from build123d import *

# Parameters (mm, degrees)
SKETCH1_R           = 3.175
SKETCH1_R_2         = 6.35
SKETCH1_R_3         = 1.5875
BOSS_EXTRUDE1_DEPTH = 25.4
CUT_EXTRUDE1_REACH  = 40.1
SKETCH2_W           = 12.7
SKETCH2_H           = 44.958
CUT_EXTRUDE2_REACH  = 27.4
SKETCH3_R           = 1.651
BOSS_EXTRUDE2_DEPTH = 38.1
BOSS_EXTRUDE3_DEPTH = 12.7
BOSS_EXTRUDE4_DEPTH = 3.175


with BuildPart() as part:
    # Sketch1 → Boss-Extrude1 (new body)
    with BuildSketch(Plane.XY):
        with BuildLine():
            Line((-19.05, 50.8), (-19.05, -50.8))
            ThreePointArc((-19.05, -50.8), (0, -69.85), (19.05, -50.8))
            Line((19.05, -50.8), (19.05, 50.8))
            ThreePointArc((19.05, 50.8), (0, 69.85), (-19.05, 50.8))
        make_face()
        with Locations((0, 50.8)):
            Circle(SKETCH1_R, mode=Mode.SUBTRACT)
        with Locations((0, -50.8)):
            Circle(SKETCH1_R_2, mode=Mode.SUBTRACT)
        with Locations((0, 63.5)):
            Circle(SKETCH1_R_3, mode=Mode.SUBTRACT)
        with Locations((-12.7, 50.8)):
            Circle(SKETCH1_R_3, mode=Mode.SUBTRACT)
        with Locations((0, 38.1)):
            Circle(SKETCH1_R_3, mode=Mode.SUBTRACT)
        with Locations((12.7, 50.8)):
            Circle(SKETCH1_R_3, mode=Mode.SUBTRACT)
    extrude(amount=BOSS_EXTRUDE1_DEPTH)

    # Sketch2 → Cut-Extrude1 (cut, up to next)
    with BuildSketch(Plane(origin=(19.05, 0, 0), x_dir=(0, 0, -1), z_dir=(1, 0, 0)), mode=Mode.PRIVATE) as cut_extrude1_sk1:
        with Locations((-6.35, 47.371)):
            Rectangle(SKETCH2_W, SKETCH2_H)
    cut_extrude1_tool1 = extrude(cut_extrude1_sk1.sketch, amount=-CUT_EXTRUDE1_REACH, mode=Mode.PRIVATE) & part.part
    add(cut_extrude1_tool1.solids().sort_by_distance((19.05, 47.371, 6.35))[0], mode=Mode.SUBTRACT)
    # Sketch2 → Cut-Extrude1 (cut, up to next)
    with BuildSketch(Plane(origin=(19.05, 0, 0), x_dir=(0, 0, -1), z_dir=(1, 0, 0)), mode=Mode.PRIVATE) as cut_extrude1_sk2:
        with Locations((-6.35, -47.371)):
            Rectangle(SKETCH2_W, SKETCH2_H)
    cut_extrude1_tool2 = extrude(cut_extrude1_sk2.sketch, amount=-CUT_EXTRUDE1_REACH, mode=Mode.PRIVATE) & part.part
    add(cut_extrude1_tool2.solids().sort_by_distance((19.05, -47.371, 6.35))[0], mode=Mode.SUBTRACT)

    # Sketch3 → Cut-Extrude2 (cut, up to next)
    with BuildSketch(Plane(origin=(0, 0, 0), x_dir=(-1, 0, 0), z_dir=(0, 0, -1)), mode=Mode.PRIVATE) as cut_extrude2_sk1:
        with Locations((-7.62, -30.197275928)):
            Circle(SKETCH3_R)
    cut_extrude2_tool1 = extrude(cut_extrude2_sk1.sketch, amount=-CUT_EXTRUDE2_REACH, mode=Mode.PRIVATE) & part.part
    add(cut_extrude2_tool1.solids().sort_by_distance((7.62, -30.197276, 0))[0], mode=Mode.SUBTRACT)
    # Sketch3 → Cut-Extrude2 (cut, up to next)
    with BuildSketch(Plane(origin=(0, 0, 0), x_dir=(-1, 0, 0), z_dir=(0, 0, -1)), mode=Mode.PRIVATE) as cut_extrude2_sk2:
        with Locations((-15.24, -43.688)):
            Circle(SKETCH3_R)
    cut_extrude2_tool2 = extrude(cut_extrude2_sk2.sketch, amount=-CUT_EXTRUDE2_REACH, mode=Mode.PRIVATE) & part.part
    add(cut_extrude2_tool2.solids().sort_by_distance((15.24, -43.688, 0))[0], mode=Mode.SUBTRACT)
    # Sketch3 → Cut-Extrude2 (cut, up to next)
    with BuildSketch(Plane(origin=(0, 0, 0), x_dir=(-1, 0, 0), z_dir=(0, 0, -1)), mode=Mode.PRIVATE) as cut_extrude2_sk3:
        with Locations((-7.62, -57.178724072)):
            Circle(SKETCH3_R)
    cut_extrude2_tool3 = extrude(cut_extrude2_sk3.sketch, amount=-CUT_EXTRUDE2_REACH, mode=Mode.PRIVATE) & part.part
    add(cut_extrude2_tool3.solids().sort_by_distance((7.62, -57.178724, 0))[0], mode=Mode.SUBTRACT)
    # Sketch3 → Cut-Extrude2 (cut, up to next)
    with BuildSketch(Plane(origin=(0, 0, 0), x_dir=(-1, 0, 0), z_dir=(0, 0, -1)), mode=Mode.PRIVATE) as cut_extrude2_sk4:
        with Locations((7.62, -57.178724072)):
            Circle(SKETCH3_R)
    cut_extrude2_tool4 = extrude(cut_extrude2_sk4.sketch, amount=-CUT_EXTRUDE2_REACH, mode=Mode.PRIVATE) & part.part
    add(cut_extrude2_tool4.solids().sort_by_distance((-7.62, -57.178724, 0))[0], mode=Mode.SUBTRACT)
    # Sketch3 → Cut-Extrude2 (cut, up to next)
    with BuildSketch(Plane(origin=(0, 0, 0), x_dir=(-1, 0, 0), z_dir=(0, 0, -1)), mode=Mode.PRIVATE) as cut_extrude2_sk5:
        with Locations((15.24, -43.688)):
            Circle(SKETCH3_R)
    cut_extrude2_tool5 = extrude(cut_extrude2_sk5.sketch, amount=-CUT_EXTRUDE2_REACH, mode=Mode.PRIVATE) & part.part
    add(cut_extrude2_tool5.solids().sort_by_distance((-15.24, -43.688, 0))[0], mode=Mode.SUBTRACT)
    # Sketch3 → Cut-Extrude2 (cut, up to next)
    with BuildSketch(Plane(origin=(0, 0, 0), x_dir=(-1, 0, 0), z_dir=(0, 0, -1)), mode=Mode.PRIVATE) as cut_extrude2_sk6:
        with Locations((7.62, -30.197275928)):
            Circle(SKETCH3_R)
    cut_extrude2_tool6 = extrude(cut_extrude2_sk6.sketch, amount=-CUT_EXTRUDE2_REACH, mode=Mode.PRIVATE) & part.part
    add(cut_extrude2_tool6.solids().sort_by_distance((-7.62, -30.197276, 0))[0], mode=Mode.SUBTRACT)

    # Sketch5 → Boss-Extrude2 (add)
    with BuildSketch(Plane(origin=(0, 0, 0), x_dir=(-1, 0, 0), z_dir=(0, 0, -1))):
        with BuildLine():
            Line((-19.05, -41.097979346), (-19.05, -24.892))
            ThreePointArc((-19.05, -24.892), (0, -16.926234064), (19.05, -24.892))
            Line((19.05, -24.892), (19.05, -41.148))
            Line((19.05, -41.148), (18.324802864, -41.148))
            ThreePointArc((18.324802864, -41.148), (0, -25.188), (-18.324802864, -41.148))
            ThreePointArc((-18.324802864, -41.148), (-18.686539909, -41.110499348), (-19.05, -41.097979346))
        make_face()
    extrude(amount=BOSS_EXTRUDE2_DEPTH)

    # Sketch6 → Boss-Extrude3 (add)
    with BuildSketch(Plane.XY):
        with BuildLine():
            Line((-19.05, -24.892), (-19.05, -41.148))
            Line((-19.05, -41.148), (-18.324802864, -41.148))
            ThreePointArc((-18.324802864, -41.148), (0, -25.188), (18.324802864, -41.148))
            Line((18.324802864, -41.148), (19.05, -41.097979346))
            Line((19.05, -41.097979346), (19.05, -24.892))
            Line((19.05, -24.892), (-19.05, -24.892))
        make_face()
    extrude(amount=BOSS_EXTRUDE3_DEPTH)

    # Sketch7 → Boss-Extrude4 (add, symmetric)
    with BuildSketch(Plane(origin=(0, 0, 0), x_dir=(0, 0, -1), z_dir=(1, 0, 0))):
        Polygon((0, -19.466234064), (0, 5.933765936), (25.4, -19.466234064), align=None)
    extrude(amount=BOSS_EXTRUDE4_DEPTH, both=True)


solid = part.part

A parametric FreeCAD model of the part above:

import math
import FreeCAD as App
import Part
import Sketcher
Q = App.Units.Quantity

doc = App.newDocument("Part")
params = doc.addObject("Spreadsheet::Sheet", "Params")
for row, (alias, value) in enumerate([
    ("sketch1_diameter", "0.5 in"),
    ("sketch1_diameter2", "0.25 in"),
    ("sketch1_height", "4 in"),
    ("sketch1_radius", "0.75 in"),
    ("sketch1_diameter3", "0.125 in"),
    ("pad1_length", "1 in"),
    ("sketch2_height", "0.5 in"),
    ("sketch2_width", "1.77 in"),
    ("sketch3_height", "0.5 in"),
    ("sketch3_width", "1.77 in"),
    ("pocket2_length", "1.5 in"),
    ("sketch4_diameter", "0.13 in"),
    ("pocket3_length", "1 in"),
    ("sketch5_diameter", "0.13 in"),
    ("pocket4_length", "1 in"),
    ("sketch6_diameter", "0.13 in"),
    ("pocket5_length", "1 in"),
    ("sketch7_diameter", "0.13 in"),
    ("pocket6_length", "1 in"),
    ("sketch8_diameter", "0.13 in"),
    ("pocket7_length", "1 in"),
    ("sketch9_diameter", "0.13 in"),
    ("pocket8_length", "1 in"),
    ("sketch10_height", "0.64 in"),
    ("pad2_length", "1.5 in"),
    ("sketch11_width", "1.5 in"),
    ("sketch11_height", "0.64 in"),
    ("pad3_length", "0.5 in"),
    ("sketch12_width", "1 in"),
    ("pad4_length", "0.25 in"),
], start=1):
    params.set(f"A{row}", alias)
    params.set(f"B{row}", "=" + value)
    params.setAlias(f"B{row}", alias)

body = doc.addObject("PartDesign::Body", "Body")

# Sketch on XY plane
sketch1 = body.newObject("Sketcher::SketchObject", "Sketch")
sketch1.AttachmentSupport = (doc.getObject("XY_Plane"), [""])
sketch1.MapMode = "FlatFace"
sketch1.addGeometry(Part.LineSegment(App.Vector(-19.1, 50.8, 0), App.Vector(-19.1, -50.8, 0)), False)
sketch1.addGeometry(Part.ArcOfCircle(Part.Circle(App.Vector(0, -50.8, 0), App.Vector(0, 0, 1), 19.1), math.radians(180), math.radians(360)), False)
sketch1.addGeometry(Part.LineSegment(App.Vector(19.1, -50.8, 0), App.Vector(19.1, 50.8, 0)), False)
sketch1.addGeometry(Part.ArcOfCircle(Part.Circle(App.Vector(0, 50.8, 0), App.Vector(0, 0, 1), 19.1), math.radians(0), math.radians(180)), False)
sketch1.addGeometry(Part.Circle(App.Vector(0, -50.8, 0), App.Vector(0, 0, 1), 6.3), False)
sketch1.addGeometry(Part.Circle(App.Vector(-12.7, 50.8, 0), App.Vector(0, 0, 1), 1.6), False)
sketch1.addGeometry(Part.Circle(App.Vector(0, 38.1, 0), App.Vector(0, 0, 1), 1.6), False)
sketch1.addGeometry(Part.Circle(App.Vector(0, 50.8, 0), App.Vector(0, 0, 1), 3.2), False)
sketch1.addGeometry(Part.Circle(App.Vector(0, 63.5, 0), App.Vector(0, 0, 1), 1.6), False)
sketch1.addGeometry(Part.Circle(App.Vector(12.7, 50.8, 0), App.Vector(0, 0, 1), 1.6), False)
sketch1.addConstraint(Sketcher.Constraint("Tangent", 0, 2, 1, 1))
sketch1.addConstraint(Sketcher.Constraint("Tangent", 1, 2, 2, 1))
sketch1.addConstraint(Sketcher.Constraint("Tangent", 2, 2, 3, 1))
sketch1.addConstraint(Sketcher.Constraint("Tangent", 3, 2, 0, 1))
sketch1.addConstraint(Sketcher.Constraint("Vertical", 0))
sketch1.addConstraint(Sketcher.Constraint("Vertical", 2))
sketch1.addConstraint(Sketcher.Constraint("Coincident", 4, 3, 1, 3))
sketch1.addConstraint(Sketcher.Constraint("Coincident", 7, 3, 3, 3))
sketch1.addConstraint(Sketcher.Constraint("Equal", 5, 6))
sketch1.addConstraint(Sketcher.Constraint("Equal", 6, 8))
sketch1.addConstraint(Sketcher.Constraint("Equal", 8, 9))
sketch1.addConstraint(Sketcher.Constraint("Symmetric", 1, 3, 3, 3, -1, 1))
sketch1.addConstraint(Sketcher.Constraint("Symmetric", 5, 3, 9, 3, -2))
sketch1.addConstraint(Sketcher.Constraint("PointOnObject", 6, 3, -2))
sketch1.addConstraint(Sketcher.Constraint("PointOnObject", 8, 3, -2))
sketch1.addConstraint(Sketcher.Constraint("Horizontal", 3, 3, 5, 3))
sketch1.addConstraint(Sketcher.Constraint("Diameter", 4, Q("0.5 in")))
sketch1.addConstraint(Sketcher.Constraint("Diameter", 7, Q("0.25 in")))
sketch1.addConstraint(Sketcher.Constraint("DistanceY", 0, 2, 0, 1, Q("4 in")))
sketch1.addConstraint(Sketcher.Constraint("Radius", 1, Q("0.75 in")))
sketch1.addConstraint(Sketcher.Constraint("Diameter", 5, Q("0.125 in")))
sketch1.addConstraint(Sketcher.Constraint("DistanceY", 6, 3, 8, 3, Q("1 in")))
sketch1.addConstraint(Sketcher.Constraint("DistanceX", 5, 3, 9, 3, Q("1 in")))
sketch1.addConstraint(Sketcher.Constraint("DistanceY", -1, 1, 6, 3, Q("1.5 in")))
sketch1.setExpression("Constraints[16]", "Params.sketch1_diameter")
sketch1.setExpression("Constraints[17]", "Params.sketch1_diameter2")
sketch1.setExpression("Constraints[18]", "Params.sketch1_height")
sketch1.setExpression("Constraints[19]", "Params.sketch1_radius")
sketch1.setExpression("Constraints[20]", "Params.sketch1_diameter3")
pad1 = body.newObject("PartDesign::Pad", "Pad")
pad1.Profile = sketch1
pad1.setExpression("Length", "Params.pad1_length")

# Sketch on YZ plane
sketch2 = body.newObject("Sketcher::SketchObject", "Sketch001")
sketch2.AttachmentSupport = (doc.getObject("YZ_Plane"), [""])
sketch2.MapMode = "FlatFace"
sketch2.AttachmentOffset = App.Placement(App.Vector(0, 0, 0.75 * 25.4), App.Rotation())
sketch2.addGeometry(Part.LineSegment(App.Vector(70, 13, 0), App.Vector(25, 13, 0)), False)
sketch2.addGeometry(Part.LineSegment(App.Vector(25, 13, 0), App.Vector(25, 0, 0)), False)
sketch2.addGeometry(Part.LineSegment(App.Vector(25, 0, 0), App.Vector(70, 0, 0)), False)
sketch2.addGeometry(Part.LineSegment(App.Vector(70, 0, 0), App.Vector(70, 13, 0)), False)
sketch2.addConstraint(Sketcher.Constraint("Coincident", 0, 2, 1, 1))
sketch2.addConstraint(Sketcher.Constraint("Coincident", 1, 2, 2, 1))
sketch2.addConstraint(Sketcher.Constraint("Coincident", 2, 2, 3, 1))
sketch2.addConstraint(Sketcher.Constraint("Coincident", 3, 2, 0, 1))
sketch2.addConstraint(Sketcher.Constraint("Horizontal", 0))
sketch2.addConstraint(Sketcher.Constraint("Vertical", 1))
sketch2.addConstraint(Sketcher.Constraint("Horizontal", 2))
sketch2.addConstraint(Sketcher.Constraint("Vertical", 3))
sketch2.addConstraint(Sketcher.Constraint("PointOnObject", 1, 2, -1))
sketch2.addConstraint(Sketcher.Constraint("DistanceY", 1, 2, 1, 1, Q("0.5 in")))
sketch2.addConstraint(Sketcher.Constraint("DistanceX", 0, 2, 0, 1, Q("1.77 in")))
sketch2.addConstraint(Sketcher.Constraint("DistanceX", -1, 1, 0, 2, Q("0.98 in")))
sketch2.setExpression("Constraints[9]", "Params.sketch2_height")
sketch2.setExpression("Constraints[10]", "Params.sketch2_width")
pocket1 = body.newObject("PartDesign::Pocket", "Pocket")
pocket1.Profile = sketch2
pocket1.Type = "UpToFirst"

# Sketch on YZ plane
sketch3 = body.newObject("Sketcher::SketchObject", "Sketch002")
sketch3.AttachmentSupport = (doc.getObject("YZ_Plane"), [""])
sketch3.MapMode = "FlatFace"
sketch3.AttachmentOffset = App.Placement(App.Vector(0, 0, 0.75 * 25.4), App.Rotation())
sketch3.addGeometry(Part.LineSegment(App.Vector(-25, 13, 0), App.Vector(-70, 13, 0)), False)
sketch3.addGeometry(Part.LineSegment(App.Vector(-70, 13, 0), App.Vector(-70, 0, 0)), False)
sketch3.addGeometry(Part.LineSegment(App.Vector(-70, 0, 0), App.Vector(-25, 0, 0)), False)
sketch3.addGeometry(Part.LineSegment(App.Vector(-25, 0, 0), App.Vector(-25, 13, 0)), False)
sketch3.addConstraint(Sketcher.Constraint("Coincident", 0, 2, 1, 1))
sketch3.addConstraint(Sketcher.Constraint("Coincident", 1, 2, 2, 1))
sketch3.addConstraint(Sketcher.Constraint("Coincident", 2, 2, 3, 1))
sketch3.addConstraint(Sketcher.Constraint("Coincident", 3, 2, 0, 1))
sketch3.addConstraint(Sketcher.Constraint("Horizontal", 0))
sketch3.addConstraint(Sketcher.Constraint("Vertical", 1))
sketch3.addConstraint(Sketcher.Constraint("Horizontal", 2))
sketch3.addConstraint(Sketcher.Constraint("Vertical", 3))
sketch3.addConstraint(Sketcher.Constraint("PointOnObject", 1, 2, -1))
sketch3.addConstraint(Sketcher.Constraint("DistanceY", 1, 2, 1, 1, Q("0.5 in")))
sketch3.addConstraint(Sketcher.Constraint("DistanceX", 0, 2, 0, 1, Q("1.77 in")))
sketch3.addConstraint(Sketcher.Constraint("DistanceX", 0, 2, -1, 1, Q("2.75 in")))
sketch3.setExpression("Constraints[9]", "Params.sketch3_height")
sketch3.setExpression("Constraints[10]", "Params.sketch3_width")
pocket2 = body.newObject("PartDesign::Pocket", "Pocket001")
pocket2.Profile = sketch3
pocket2.setExpression("Length", "Params.pocket2_length")

# Sketch on XY plane
sketch4 = body.newObject("Sketcher::SketchObject", "Sketch003")
sketch4.AttachmentSupport = (doc.getObject("XY_Plane"), [""])
sketch4.MapMode = "FlatFace"
sketch4.addGeometry(Part.Circle(App.Vector(7.6, -30.2, 0), App.Vector(0, 0, 1), 1.7), False)
sketch4.addConstraint(Sketcher.Constraint("Diameter", 0, Q("0.13 in")))
sketch4.addConstraint(Sketcher.Constraint("DistanceX", -1, 1, 0, 3, Q("0.3 in")))
sketch4.addConstraint(Sketcher.Constraint("DistanceY", 0, 3, -1, 1, Q("30.197276 mm")))
sketch4.setExpression("Constraints[0]", "Params.sketch4_diameter")
pocket3 = body.newObject("PartDesign::Pocket", "Pocket002")
pocket3.Profile = sketch4
pocket3.setExpression("Length", "Params.pocket3_length")
pocket3.Reversed = True

# Sketch on XY plane
sketch5 = body.newObject("Sketcher::SketchObject", "Sketch004")
sketch5.AttachmentSupport = (doc.getObject("XY_Plane"), [""])
sketch5.MapMode = "FlatFace"
sketch5.addGeometry(Part.Circle(App.Vector(15.2, -43.7, 0), App.Vector(0, 0, 1), 1.7), False)
sketch5.addConstraint(Sketcher.Constraint("Diameter", 0, Q("0.13 in")))
sketch5.addConstraint(Sketcher.Constraint("DistanceX", -1, 1, 0, 3, Q("0.6 in")))
sketch5.addConstraint(Sketcher.Constraint("DistanceY", 0, 3, -1, 1, Q("1.72 in")))
sketch5.setExpression("Constraints[0]", "Params.sketch5_diameter")
pocket4 = body.newObject("PartDesign::Pocket", "Pocket003")
pocket4.Profile = sketch5
pocket4.setExpression("Length", "Params.pocket4_length")
pocket4.Reversed = True

# Sketch on XY plane
sketch6 = body.newObject("Sketcher::SketchObject", "Sketch005")
sketch6.AttachmentSupport = (doc.getObject("XY_Plane"), [""])
sketch6.MapMode = "FlatFace"
sketch6.addGeometry(Part.Circle(App.Vector(7.6, -57.2, 0), App.Vector(0, 0, 1), 1.7), False)
sketch6.addConstraint(Sketcher.Constraint("Diameter", 0, Q("0.13 in")))
sketch6.addConstraint(Sketcher.Constraint("DistanceX", -1, 1, 0, 3, Q("0.3 in")))
sketch6.addConstraint(Sketcher.Constraint("DistanceY", 0, 3, -1, 1, Q("57.178724 mm")))
sketch6.setExpression("Constraints[0]", "Params.sketch6_diameter")
pocket5 = body.newObject("PartDesign::Pocket", "Pocket004")
pocket5.Profile = sketch6
pocket5.setExpression("Length", "Params.pocket5_length")
pocket5.Reversed = True

# Sketch on XY plane
sketch7 = body.newObject("Sketcher::SketchObject", "Sketch006")
sketch7.AttachmentSupport = (doc.getObject("XY_Plane"), [""])
sketch7.MapMode = "FlatFace"
sketch7.addGeometry(Part.Circle(App.Vector(-7.6, -57.2, 0), App.Vector(0, 0, 1), 1.7), False)
sketch7.addConstraint(Sketcher.Constraint("Diameter", 0, Q("0.13 in")))
sketch7.addConstraint(Sketcher.Constraint("DistanceX", 0, 3, -1, 1, Q("0.3 in")))
sketch7.addConstraint(Sketcher.Constraint("DistanceY", 0, 3, -1, 1, Q("57.178724 mm")))
sketch7.setExpression("Constraints[0]", "Params.sketch7_diameter")
pocket6 = body.newObject("PartDesign::Pocket", "Pocket005")
pocket6.Profile = sketch7
pocket6.setExpression("Length", "Params.pocket6_length")
pocket6.Reversed = True

# Sketch on XY plane
sketch8 = body.newObject("Sketcher::SketchObject", "Sketch007")
sketch8.AttachmentSupport = (doc.getObject("XY_Plane"), [""])
sketch8.MapMode = "FlatFace"
sketch8.addGeometry(Part.Circle(App.Vector(-15.2, -43.7, 0), App.Vector(0, 0, 1), 1.7), False)
sketch8.addConstraint(Sketcher.Constraint("Diameter", 0, Q("0.13 in")))
sketch8.addConstraint(Sketcher.Constraint("DistanceX", 0, 3, -1, 1, Q("0.6 in")))
sketch8.addConstraint(Sketcher.Constraint("DistanceY", 0, 3, -1, 1, Q("1.72 in")))
sketch8.setExpression("Constraints[0]", "Params.sketch8_diameter")
pocket7 = body.newObject("PartDesign::Pocket", "Pocket006")
pocket7.Profile = sketch8
pocket7.setExpression("Length", "Params.pocket7_length")
pocket7.Reversed = True

# Sketch on XY plane
sketch9 = body.newObject("Sketcher::SketchObject", "Sketch008")
sketch9.AttachmentSupport = (doc.getObject("XY_Plane"), [""])
sketch9.MapMode = "FlatFace"
sketch9.addGeometry(Part.Circle(App.Vector(-7.6, -30.2, 0), App.Vector(0, 0, 1), 1.7), False)
sketch9.addConstraint(Sketcher.Constraint("Diameter", 0, Q("0.13 in")))
sketch9.addConstraint(Sketcher.Constraint("DistanceX", 0, 3, -1, 1, Q("0.3 in")))
sketch9.addConstraint(Sketcher.Constraint("DistanceY", 0, 3, -1, 1, Q("30.197276 mm")))
sketch9.setExpression("Constraints[0]", "Params.sketch9_diameter")
pocket8 = body.newObject("PartDesign::Pocket", "Pocket007")
pocket8.Profile = sketch9
pocket8.setExpression("Length", "Params.pocket8_length")
pocket8.Reversed = True

# Sketch on XY plane
sketch10 = body.newObject("Sketcher::SketchObject", "Sketch009")
sketch10.AttachmentSupport = (doc.getObject("XY_Plane"), [""])
sketch10.MapMode = "FlatFace"
sketch10.addGeometry(Part.LineSegment(App.Vector(19.1, -24.9, 0), App.Vector(19.1, -41.1, 0)), False)
sketch10.addGeometry(Part.ArcOfCircle(Part.Circle(App.Vector(19.1, -46.4, 0), App.Vector(0, 0, 1), 5.3), math.radians(90), math.radians(97.89)), False)
sketch10.addGeometry(Part.ArcOfCircle(Part.Circle(App.Vector(0, -43.7, 0), App.Vector(0, 0, 1), 18.5), math.radians(8), math.radians(172)), False)
sketch10.addGeometry(Part.LineSegment(App.Vector(-18.3, -41.1, 0), App.Vector(-19.1, -41.1, 0)), False)
sketch10.addGeometry(Part.LineSegment(App.Vector(-19.1, -41.1, 0), App.Vector(-19.1, -24.9, 0)), False)
sketch10.addGeometry(Part.ArcOfCircle(Part.Circle(App.Vector(0, -43.7, 0), App.Vector(0, 0, 1), 26.8), math.radians(45), math.radians(135)), False)
sketch10.addConstraint(Sketcher.Constraint("Coincident", 0, 2, 1, 1))
sketch10.addConstraint(Sketcher.Constraint("Coincident", 1, 2, 2, 1))
sketch10.addConstraint(Sketcher.Constraint("Coincident", 2, 2, 3, 1))
sketch10.addConstraint(Sketcher.Constraint("Coincident", 3, 2, 4, 1))
sketch10.addConstraint(Sketcher.Constraint("Coincident", 4, 2, 5, 2))
sketch10.addConstraint(Sketcher.Constraint("Coincident", 5, 1, 0, 1))
sketch10.addConstraint(Sketcher.Constraint("Vertical", 0))
sketch10.addConstraint(Sketcher.Constraint("Horizontal", 3))
sketch10.addConstraint(Sketcher.Constraint("Vertical", 4))
sketch10.addConstraint(Sketcher.Constraint("Coincident", 5, 3, 2, 3))
sketch10.addConstraint(Sketcher.Constraint("Symmetric", 1, 2, 2, 2, -2))
sketch10.addConstraint(Sketcher.Constraint("Horizontal", 4, 2, 5, 1))
sketch10.addConstraint(Sketcher.Constraint("Vertical", 1, 3, 0, 2))
sketch10.addConstraint(Sketcher.Constraint("DistanceY", 4, 1, 4, 2, Q("0.64 in")))
sketch10.addConstraint(Sketcher.Constraint("DistanceY", 5, 3, 1, 2, Q("0.1 in")))
sketch10.addConstraint(Sketcher.Constraint("DistanceX", 3, 2, 0, 2, Q("1.5 in")))
sketch10.addConstraint(Sketcher.Constraint("DistanceY", 2, 3, -1, 1, Q("1.72 in")))
sketch10.addConstraint(Sketcher.Constraint("Radius", 2, Q("18.5 mm")))
sketch10.addConstraint(Sketcher.Constraint("Radius", 1, Q("5.281948 mm")))
sketch10.setExpression("Constraints[13]", "Params.sketch10_height")
pad2 = body.newObject("PartDesign::Pad", "Pad001")
pad2.Profile = sketch10
pad2.setExpression("Length", "Params.pad2_length")
pad2.Reversed = True

# Sketch on XY plane
sketch11 = body.newObject("Sketcher::SketchObject", "Sketch010")
sketch11.AttachmentSupport = (doc.getObject("XY_Plane"), [""])
sketch11.MapMode = "FlatFace"
sketch11.addGeometry(Part.LineSegment(App.Vector(-19.1, -24.9, 0), App.Vector(-19.1, -41.1, 0)), False)
sketch11.addGeometry(Part.LineSegment(App.Vector(-19.1, -41.1, 0), App.Vector(-18.3, -41.1, 0)), False)
sketch11.addGeometry(Part.ArcOfCircle(Part.Circle(App.Vector(0, -43.7, 0), App.Vector(0, 0, 1), 18.5), math.radians(8), math.radians(172)), False)
sketch11.addGeometry(Part.LineSegment(App.Vector(18.3, -41.1, 0), App.Vector(19.1, -41.1, 0)), False)
sketch11.addGeometry(Part.LineSegment(App.Vector(19.1, -41.1, 0), App.Vector(19.1, -24.9, 0)), False)
sketch11.addGeometry(Part.LineSegment(App.Vector(19.1, -24.9, 0), App.Vector(-19.1, -24.9, 0)), False)
sketch11.addConstraint(Sketcher.Constraint("Coincident", 0, 2, 1, 1))
sketch11.addConstraint(Sketcher.Constraint("Coincident", 1, 2, 2, 2))
sketch11.addConstraint(Sketcher.Constraint("Coincident", 2, 1, 3, 1))
sketch11.addConstraint(Sketcher.Constraint("Coincident", 3, 2, 4, 1))
sketch11.addConstraint(Sketcher.Constraint("Coincident", 4, 2, 5, 1))
sketch11.addConstraint(Sketcher.Constraint("Coincident", 5, 2, 0, 1))
sketch11.addConstraint(Sketcher.Constraint("Vertical", 0))
sketch11.addConstraint(Sketcher.Constraint("Horizontal", 1))
sketch11.addConstraint(Sketcher.Constraint("Vertical", 4))
sketch11.addConstraint(Sketcher.Constraint("Horizontal", 5))
sketch11.addConstraint(Sketcher.Constraint("Symmetric", 1, 2, 2, 1, -2))
sketch11.addConstraint(Sketcher.Constraint("DistanceX", 5, 2, 5, 1, Q("1.5 in")))
sketch11.addConstraint(Sketcher.Constraint("DistanceY", 0, 2, 0, 1, Q("0.64 in")))
sketch11.addConstraint(Sketcher.Constraint("DistanceY", 2, 3, 0, 2, Q("0.1 in")))
sketch11.addConstraint(Sketcher.Constraint("DistanceY", 2, 3, -1, 1, Q("1.72 in")))
sketch11.addConstraint(Sketcher.Constraint("DistanceX", 0, 2, -1, 1, Q("0.75 in")))
sketch11.addConstraint(Sketcher.Constraint("Radius", 2, Q("18.5 mm")))
sketch11.addConstraint(Sketcher.Constraint("DistanceY", 4, 1, 4, 2, Q("16.205979 mm")))
sketch11.setExpression("Constraints[11]", "Params.sketch11_width")
sketch11.setExpression("Constraints[12]", "Params.sketch11_height")
pad3 = body.newObject("PartDesign::Pad", "Pad002")
pad3.Profile = sketch11
pad3.setExpression("Length", "Params.pad3_length")

# Sketch on YZ plane
sketch12 = body.newObject("Sketcher::SketchObject", "Sketch011")
sketch12.AttachmentSupport = (doc.getObject("YZ_Plane"), [""])
sketch12.MapMode = "FlatFace"
sketch12.addGeometry(Part.LineSegment(App.Vector(6, 0, 0), App.Vector(-19, 0, 0)), False)
sketch12.addGeometry(Part.LineSegment(App.Vector(-19, 0, 0), App.Vector(-19, -25, 0)), False)
sketch12.addGeometry(Part.LineSegment(App.Vector(-19, -25, 0), App.Vector(6, 0, 0)), False)
sketch12.addConstraint(Sketcher.Constraint("Coincident", 0, 2, 1, 1))
sketch12.addConstraint(Sketcher.Constraint("Coincident", 1, 2, 2, 1))
sketch12.addConstraint(Sketcher.Constraint("Coincident", 2, 2, 0, 1))
sketch12.addConstraint(Sketcher.Constraint("Horizontal", 0))
sketch12.addConstraint(Sketcher.Constraint("Vertical", 1))
sketch12.addConstraint(Sketcher.Constraint("PointOnObject", 0, 2, -1))
sketch12.addConstraint(Sketcher.Constraint("Equal", 0, 1))
sketch12.addConstraint(Sketcher.Constraint("DistanceX", 0, 2, 0, 1, Q("1 in")))
sketch12.addConstraint(Sketcher.Constraint("DistanceX", 0, 2, -1, 1, Q("19.466234 mm")))
sketch12.setExpression("Constraints[7]", "Params.sketch12_width")
pad4 = body.newObject("PartDesign::Pad", "Pad003")
pad4.Profile = sketch12
pad4.setExpression("Length", "Params.pad4_length")
pad4.Midplane = True

doc.recompute()
